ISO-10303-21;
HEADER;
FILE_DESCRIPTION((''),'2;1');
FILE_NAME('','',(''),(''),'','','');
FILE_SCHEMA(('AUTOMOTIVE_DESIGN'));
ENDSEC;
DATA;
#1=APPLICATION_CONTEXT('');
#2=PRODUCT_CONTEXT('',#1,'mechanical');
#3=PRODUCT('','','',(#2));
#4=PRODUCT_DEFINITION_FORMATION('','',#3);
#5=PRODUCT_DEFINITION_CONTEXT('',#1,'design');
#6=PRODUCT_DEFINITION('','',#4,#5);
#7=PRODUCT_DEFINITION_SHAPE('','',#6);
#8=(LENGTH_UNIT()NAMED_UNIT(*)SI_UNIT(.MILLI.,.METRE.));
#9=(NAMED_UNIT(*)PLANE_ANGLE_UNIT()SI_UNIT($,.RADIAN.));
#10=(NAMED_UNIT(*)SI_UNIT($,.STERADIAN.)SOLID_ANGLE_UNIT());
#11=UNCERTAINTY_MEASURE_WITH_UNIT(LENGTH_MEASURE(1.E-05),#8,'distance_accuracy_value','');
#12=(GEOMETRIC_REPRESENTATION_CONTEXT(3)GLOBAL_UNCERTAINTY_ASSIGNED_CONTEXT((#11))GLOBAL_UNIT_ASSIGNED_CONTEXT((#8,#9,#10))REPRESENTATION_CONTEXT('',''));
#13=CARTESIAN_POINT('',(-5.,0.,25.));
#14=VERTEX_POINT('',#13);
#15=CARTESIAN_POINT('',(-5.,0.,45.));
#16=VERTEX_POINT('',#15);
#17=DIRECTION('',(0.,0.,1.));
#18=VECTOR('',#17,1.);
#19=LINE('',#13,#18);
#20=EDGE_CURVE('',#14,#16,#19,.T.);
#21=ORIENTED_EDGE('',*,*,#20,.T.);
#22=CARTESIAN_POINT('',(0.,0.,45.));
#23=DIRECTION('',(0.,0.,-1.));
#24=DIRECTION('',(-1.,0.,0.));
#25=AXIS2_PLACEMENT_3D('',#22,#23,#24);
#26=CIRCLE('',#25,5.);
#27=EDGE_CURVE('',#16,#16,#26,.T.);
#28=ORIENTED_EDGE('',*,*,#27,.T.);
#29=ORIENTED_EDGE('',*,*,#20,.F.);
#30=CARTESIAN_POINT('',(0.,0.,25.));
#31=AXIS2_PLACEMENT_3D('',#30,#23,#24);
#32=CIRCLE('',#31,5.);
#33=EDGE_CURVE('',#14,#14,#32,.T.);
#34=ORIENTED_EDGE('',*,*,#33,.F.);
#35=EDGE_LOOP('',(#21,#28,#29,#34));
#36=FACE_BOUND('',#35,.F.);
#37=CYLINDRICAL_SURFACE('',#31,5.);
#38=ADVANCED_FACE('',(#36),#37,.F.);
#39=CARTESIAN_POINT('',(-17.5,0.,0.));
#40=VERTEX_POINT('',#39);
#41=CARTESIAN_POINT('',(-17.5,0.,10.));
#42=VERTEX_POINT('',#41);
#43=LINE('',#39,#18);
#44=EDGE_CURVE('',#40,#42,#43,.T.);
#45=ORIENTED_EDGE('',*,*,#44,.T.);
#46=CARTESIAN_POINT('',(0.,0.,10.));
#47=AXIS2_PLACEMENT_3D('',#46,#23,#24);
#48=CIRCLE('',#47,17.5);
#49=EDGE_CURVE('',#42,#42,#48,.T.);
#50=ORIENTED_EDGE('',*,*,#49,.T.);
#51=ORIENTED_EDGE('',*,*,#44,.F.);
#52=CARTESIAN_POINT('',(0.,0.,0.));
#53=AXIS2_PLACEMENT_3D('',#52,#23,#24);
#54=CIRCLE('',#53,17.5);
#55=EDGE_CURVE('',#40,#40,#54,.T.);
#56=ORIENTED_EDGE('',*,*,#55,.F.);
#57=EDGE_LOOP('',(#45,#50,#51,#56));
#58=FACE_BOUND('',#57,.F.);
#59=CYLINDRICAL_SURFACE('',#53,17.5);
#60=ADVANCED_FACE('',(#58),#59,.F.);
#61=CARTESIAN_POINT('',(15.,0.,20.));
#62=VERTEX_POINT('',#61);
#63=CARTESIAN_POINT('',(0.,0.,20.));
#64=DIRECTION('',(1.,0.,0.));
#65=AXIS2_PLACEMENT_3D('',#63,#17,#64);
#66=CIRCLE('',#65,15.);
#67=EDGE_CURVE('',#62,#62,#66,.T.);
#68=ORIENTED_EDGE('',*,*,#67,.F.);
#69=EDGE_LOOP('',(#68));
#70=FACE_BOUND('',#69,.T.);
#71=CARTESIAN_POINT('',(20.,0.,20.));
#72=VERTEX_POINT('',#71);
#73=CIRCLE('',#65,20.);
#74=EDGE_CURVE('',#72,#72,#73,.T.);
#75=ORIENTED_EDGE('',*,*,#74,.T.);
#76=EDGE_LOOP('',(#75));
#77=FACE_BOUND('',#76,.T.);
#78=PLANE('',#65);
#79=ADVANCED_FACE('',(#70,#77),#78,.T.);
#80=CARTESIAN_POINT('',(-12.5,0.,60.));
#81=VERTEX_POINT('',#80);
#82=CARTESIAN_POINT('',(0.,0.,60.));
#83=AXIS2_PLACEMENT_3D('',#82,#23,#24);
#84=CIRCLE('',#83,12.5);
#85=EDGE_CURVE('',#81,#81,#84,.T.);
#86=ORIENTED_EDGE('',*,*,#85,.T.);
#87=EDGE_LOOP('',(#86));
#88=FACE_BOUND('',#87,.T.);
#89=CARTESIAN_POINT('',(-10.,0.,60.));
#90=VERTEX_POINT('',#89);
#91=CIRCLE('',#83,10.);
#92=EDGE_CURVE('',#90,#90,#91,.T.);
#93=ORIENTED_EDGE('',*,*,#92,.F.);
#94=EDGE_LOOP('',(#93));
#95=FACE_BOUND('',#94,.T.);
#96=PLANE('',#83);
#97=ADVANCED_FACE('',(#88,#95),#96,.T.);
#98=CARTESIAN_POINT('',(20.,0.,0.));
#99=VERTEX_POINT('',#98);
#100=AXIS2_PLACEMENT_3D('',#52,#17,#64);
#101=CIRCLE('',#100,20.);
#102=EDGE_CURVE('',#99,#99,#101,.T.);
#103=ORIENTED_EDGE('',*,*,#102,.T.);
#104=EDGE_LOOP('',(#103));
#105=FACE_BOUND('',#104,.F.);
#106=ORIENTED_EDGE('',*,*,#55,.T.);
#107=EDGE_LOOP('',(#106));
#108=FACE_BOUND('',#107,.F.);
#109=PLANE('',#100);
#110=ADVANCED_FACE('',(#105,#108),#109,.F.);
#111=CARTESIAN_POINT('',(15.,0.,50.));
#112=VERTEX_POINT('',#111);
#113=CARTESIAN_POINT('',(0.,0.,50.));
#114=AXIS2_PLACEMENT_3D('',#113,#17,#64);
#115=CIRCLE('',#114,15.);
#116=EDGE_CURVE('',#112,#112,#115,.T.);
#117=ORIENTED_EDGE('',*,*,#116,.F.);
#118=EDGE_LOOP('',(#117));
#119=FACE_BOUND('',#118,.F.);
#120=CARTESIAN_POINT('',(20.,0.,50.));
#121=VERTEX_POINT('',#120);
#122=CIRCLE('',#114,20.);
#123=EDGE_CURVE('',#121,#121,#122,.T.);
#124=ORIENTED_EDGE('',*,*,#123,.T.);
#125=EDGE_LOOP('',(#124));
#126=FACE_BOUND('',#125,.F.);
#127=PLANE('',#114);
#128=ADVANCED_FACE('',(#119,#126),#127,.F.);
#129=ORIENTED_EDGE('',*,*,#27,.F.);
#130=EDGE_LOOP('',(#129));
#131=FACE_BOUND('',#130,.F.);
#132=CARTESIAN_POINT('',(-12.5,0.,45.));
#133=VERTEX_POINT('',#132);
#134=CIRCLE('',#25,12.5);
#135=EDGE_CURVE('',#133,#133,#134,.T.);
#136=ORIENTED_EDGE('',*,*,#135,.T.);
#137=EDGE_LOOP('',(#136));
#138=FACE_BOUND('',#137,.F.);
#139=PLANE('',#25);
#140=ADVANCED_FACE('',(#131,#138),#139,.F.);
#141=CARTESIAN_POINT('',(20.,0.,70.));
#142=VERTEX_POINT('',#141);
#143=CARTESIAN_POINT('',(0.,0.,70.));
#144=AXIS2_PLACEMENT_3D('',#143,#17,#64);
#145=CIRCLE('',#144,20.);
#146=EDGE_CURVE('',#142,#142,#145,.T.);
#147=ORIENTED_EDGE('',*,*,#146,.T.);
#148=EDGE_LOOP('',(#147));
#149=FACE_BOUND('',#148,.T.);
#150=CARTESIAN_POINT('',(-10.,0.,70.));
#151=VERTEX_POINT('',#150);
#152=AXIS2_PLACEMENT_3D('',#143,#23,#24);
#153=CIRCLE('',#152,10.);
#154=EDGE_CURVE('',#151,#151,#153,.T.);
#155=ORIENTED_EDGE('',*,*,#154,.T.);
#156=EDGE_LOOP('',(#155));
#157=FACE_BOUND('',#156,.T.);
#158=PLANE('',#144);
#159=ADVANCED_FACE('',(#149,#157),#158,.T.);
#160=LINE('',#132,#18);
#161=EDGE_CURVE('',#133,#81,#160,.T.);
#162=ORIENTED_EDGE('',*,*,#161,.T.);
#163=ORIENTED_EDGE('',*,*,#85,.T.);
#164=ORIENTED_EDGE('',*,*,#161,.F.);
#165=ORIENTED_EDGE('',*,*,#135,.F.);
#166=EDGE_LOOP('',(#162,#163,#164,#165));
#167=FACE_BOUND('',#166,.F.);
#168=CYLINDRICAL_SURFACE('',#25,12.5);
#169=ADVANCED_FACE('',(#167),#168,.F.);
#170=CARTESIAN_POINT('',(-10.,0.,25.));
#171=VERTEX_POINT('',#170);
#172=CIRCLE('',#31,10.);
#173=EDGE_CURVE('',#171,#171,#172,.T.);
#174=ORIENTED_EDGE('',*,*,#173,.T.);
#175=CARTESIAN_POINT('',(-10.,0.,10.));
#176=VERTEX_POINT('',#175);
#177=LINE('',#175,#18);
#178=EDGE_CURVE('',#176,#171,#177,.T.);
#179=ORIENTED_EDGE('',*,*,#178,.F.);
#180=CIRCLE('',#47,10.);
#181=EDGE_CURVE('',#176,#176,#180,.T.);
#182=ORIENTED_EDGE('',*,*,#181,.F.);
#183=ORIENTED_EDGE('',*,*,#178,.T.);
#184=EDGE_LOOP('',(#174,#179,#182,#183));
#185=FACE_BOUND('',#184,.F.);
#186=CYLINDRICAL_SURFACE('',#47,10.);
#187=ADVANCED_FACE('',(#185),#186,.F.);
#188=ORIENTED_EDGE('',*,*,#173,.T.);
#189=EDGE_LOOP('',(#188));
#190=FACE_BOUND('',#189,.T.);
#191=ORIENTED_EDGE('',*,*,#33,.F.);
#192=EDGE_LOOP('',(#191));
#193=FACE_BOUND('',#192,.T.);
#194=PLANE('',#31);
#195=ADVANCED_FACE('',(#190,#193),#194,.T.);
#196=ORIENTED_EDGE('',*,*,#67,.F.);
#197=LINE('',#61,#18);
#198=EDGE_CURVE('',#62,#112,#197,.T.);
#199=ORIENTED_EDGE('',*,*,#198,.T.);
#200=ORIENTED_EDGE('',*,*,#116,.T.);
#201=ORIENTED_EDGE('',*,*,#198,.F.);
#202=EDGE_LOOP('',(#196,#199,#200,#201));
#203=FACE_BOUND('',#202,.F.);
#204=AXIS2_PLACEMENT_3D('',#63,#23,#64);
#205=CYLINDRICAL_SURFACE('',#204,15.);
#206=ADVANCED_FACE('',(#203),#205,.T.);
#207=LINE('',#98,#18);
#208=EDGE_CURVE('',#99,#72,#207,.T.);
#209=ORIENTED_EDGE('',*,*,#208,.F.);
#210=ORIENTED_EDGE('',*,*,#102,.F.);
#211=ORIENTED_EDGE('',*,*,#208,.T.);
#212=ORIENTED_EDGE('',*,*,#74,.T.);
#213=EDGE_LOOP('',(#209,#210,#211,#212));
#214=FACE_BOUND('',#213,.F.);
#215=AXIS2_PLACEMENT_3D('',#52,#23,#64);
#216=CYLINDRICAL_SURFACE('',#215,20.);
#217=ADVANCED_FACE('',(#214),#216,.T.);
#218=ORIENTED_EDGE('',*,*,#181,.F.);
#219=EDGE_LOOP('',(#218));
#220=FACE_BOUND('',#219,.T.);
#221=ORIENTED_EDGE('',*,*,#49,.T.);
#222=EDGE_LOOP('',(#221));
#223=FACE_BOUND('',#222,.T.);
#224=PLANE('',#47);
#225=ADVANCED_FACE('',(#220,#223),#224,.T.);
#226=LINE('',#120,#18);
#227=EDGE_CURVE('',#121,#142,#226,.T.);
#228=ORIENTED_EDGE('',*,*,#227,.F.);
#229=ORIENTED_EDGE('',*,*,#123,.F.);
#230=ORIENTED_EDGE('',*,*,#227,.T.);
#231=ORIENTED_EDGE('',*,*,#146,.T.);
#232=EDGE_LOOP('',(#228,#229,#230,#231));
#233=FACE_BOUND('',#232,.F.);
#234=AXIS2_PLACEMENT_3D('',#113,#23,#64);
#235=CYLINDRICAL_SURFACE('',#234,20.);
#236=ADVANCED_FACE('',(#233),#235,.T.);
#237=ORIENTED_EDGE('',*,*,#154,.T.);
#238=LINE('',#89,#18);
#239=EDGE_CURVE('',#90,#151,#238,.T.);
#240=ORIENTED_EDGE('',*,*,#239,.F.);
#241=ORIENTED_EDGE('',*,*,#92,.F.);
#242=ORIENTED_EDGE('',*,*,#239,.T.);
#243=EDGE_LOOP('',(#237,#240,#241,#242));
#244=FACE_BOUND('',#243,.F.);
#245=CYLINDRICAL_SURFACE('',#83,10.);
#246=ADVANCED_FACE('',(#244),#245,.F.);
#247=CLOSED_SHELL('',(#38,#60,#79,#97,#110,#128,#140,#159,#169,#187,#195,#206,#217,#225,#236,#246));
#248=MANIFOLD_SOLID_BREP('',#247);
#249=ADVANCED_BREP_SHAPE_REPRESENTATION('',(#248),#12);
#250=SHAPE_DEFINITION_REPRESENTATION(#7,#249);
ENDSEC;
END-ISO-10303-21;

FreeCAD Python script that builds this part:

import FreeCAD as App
import Part
import Sketcher
from FreeCAD import Vector
Q = App.Units.Quantity

doc = App.newDocument("Part")
body = doc.addObject("PartDesign::Body", "Body")

# Sketch on XY plane
sketch1 = doc.addObject("Sketcher::SketchObject", "Sketch")
body.addObject(sketch1)
sketch1.AttachmentSupport = (doc.XY_Plane, [""])
sketch1.MapMode = "FlatFace"
sketch1.addGeometry(Part.Circle(Vector(0, 0, 0), Vector(0, 0, 1), 20), False)
sketch1.addConstraint(Sketcher.Constraint("Coincident", 0, 3, -1, 1))
sketch1.addConstraint(Sketcher.Constraint("Diameter", 0, Q("40 mm")))
pad1 = doc.addObject("PartDesign::Pad", "Pad")
body.addObject(pad1)
pad1.Profile = sketch1
pad1.Length = 20

# Sketch on XY plane
sketch2 = doc.addObject("Sketcher::SketchObject", "Sketch001")
body.addObject(sketch2)
sketch2.AttachmentSupport = (doc.XY_Plane, [""])
sketch2.MapMode = "FlatFace"
sketch2.AttachmentOffset = App.Placement(Vector(0, 0, 20), App.Rotation())
sketch2.addGeometry(Part.Circle(Vector(0, 0, 0), Vector(0, 0, 1), 15), False)
sketch2.addConstraint(Sketcher.Constraint("Coincident", 0, 3, -1, 1))
sketch2.addConstraint(Sketcher.Constraint("Diameter", 0, Q("30 mm")))
pad2 = doc.addObject("PartDesign::Pad", "Pad001")
body.addObject(pad2)
pad2.Profile = sketch2
pad2.Length = 30

# Sketch on XY plane
sketch3 = doc.addObject("Sketcher::SketchObject", "Sketch002")
body.addObject(sketch3)
sketch3.AttachmentSupport = (doc.XY_Plane, [""])
sketch3.MapMode = "FlatFace"
sketch3.AttachmentOffset = App.Placement(Vector(0, 0, 50), App.Rotation())
sketch3.addGeometry(Part.Circle(Vector(0, 0, 0), Vector(0, 0, 1), 20), False)
sketch3.addConstraint(Sketcher.Constraint("Coincident", 0, 3, -1, 1))
sketch3.addConstraint(Sketcher.Constraint("Diameter", 0, Q("40 mm")))
pad3 = doc.addObject("PartDesign::Pad", "Pad002")
body.addObject(pad3)
pad3.Profile = sketch3
pad3.Length = 20

# Sketch on XY plane
sketch4 = doc.addObject("Sketcher::SketchObject", "Sketch003")
body.addObject(sketch4)
sketch4.AttachmentSupport = (doc.XY_Plane, [""])
sketch4.MapMode = "FlatFace"
sketch4.addGeometry(Part.Circle(Vector(0, 0, 0), Vector(0, 0, 1), 18), False)
sketch4.addConstraint(Sketcher.Constraint("Coincident", 0, 3, -1, 1))
sketch4.addConstraint(Sketcher.Constraint("Diameter", 0, Q("35 mm")))
pocket1 = doc.addObject("PartDesign::Pocket", "Pocket")
body.addObject(pocket1)
pocket1.Profile = sketch4
pocket1.Length = 10
pocket1.Reversed = True

# Sketch on XY plane
sketch5 = doc.addObject("Sketcher::SketchObject", "Sketch004")
body.addObject(sketch5)
sketch5.AttachmentSupport = (doc.XY_Plane, [""])
sketch5.MapMode = "FlatFace"
sketch5.AttachmentOffset = App.Placement(Vector(0, 0, 10), App.Rotation())
sketch5.addGeometry(Part.Circle(Vector(0, 0, 0), Vector(0, 0, 1), 10), False)
sketch5.addConstraint(Sketcher.Constraint("Coincident", 0, 3, -1, 1))
sketch5.addConstraint(Sketcher.Constraint("Diameter", 0, Q("20 mm")))
pocket2 = doc.addObject("PartDesign::Pocket", "Pocket001")
body.addObject(pocket2)
pocket2.Profile = sketch5
pocket2.Length = 15
pocket2.Reversed = True

# Sketch on XY plane
sketch6 = doc.addObject("Sketcher::SketchObject", "Sketch005")
body.addObject(sketch6)
sketch6.AttachmentSupport = (doc.XY_Plane, [""])
sketch6.MapMode = "FlatFace"
sketch6.AttachmentOffset = App.Placement(Vector(0, 0, 25), App.Rotation())
sketch6.addGeometry(Part.Circle(Vector(0, 0, 0), Vector(0, 0, 1), 5), False)
sketch6.addConstraint(Sketcher.Constraint("Coincident", 0, 3, -1, 1))
sketch6.addConstraint(Sketcher.Constraint("Diameter", 0, Q("10 mm")))
pocket3 = doc.addObject("PartDesign::Pocket", "Pocket002")
body.addObject(pocket3)
pocket3.Profile = sketch6
pocket3.Length = 20
pocket3.Reversed = True

# Sketch on XY plane
sketch7 = doc.addObject("Sketcher::SketchObject", "Sketch006")
body.addObject(sketch7)
sketch7.AttachmentSupport = (doc.XY_Plane, [""])
sketch7.MapMode = "FlatFace"
sketch7.AttachmentOffset = App.Placement(Vector(0, 0, 45), App.Rotation())
sketch7.addGeometry(Part.Circle(Vector(0, 0, 0), Vector(0, 0, 1), 12), False)
sketch7.addConstraint(Sketcher.Constraint("Coincident", 0, 3, -1, 1))
sketch7.addConstraint(Sketcher.Constraint("Diameter", 0, Q("25 mm")))
pocket4 = doc.addObject("PartDesign::Pocket", "Pocket003")
body.addObject(pocket4)
pocket4.Profile = sketch7
pocket4.Length = 15
pocket4.Reversed = True

# Sketch on XY plane
sketch8 = doc.addObject("Sketcher::SketchObject", "Sketch007")
body.addObject(sketch8)
sketch8.AttachmentSupport = (doc.XY_Plane, [""])
sketch8.MapMode = "FlatFace"
sketch8.AttachmentOffset = App.Placement(Vector(0, 0, 60), App.Rotation())
sketch8.addGeometry(Part.Circle(Vector(0, 0, 0), Vector(0, 0, 1), 10), False)
sketch8.addConstraint(Sketcher.Constraint("Coincident", 0, 3, -1, 1))
sketch8.addConstraint(Sketcher.Constraint("Diameter", 0, Q("20 mm")))
pocket5 = doc.addObject("PartDesign::Pocket", "Pocket004")
body.addObject(pocket5)
pocket5.Profile = sketch8
pocket5.Type = "UpToFirst"
pocket5.Reversed = True

doc.recompute()
